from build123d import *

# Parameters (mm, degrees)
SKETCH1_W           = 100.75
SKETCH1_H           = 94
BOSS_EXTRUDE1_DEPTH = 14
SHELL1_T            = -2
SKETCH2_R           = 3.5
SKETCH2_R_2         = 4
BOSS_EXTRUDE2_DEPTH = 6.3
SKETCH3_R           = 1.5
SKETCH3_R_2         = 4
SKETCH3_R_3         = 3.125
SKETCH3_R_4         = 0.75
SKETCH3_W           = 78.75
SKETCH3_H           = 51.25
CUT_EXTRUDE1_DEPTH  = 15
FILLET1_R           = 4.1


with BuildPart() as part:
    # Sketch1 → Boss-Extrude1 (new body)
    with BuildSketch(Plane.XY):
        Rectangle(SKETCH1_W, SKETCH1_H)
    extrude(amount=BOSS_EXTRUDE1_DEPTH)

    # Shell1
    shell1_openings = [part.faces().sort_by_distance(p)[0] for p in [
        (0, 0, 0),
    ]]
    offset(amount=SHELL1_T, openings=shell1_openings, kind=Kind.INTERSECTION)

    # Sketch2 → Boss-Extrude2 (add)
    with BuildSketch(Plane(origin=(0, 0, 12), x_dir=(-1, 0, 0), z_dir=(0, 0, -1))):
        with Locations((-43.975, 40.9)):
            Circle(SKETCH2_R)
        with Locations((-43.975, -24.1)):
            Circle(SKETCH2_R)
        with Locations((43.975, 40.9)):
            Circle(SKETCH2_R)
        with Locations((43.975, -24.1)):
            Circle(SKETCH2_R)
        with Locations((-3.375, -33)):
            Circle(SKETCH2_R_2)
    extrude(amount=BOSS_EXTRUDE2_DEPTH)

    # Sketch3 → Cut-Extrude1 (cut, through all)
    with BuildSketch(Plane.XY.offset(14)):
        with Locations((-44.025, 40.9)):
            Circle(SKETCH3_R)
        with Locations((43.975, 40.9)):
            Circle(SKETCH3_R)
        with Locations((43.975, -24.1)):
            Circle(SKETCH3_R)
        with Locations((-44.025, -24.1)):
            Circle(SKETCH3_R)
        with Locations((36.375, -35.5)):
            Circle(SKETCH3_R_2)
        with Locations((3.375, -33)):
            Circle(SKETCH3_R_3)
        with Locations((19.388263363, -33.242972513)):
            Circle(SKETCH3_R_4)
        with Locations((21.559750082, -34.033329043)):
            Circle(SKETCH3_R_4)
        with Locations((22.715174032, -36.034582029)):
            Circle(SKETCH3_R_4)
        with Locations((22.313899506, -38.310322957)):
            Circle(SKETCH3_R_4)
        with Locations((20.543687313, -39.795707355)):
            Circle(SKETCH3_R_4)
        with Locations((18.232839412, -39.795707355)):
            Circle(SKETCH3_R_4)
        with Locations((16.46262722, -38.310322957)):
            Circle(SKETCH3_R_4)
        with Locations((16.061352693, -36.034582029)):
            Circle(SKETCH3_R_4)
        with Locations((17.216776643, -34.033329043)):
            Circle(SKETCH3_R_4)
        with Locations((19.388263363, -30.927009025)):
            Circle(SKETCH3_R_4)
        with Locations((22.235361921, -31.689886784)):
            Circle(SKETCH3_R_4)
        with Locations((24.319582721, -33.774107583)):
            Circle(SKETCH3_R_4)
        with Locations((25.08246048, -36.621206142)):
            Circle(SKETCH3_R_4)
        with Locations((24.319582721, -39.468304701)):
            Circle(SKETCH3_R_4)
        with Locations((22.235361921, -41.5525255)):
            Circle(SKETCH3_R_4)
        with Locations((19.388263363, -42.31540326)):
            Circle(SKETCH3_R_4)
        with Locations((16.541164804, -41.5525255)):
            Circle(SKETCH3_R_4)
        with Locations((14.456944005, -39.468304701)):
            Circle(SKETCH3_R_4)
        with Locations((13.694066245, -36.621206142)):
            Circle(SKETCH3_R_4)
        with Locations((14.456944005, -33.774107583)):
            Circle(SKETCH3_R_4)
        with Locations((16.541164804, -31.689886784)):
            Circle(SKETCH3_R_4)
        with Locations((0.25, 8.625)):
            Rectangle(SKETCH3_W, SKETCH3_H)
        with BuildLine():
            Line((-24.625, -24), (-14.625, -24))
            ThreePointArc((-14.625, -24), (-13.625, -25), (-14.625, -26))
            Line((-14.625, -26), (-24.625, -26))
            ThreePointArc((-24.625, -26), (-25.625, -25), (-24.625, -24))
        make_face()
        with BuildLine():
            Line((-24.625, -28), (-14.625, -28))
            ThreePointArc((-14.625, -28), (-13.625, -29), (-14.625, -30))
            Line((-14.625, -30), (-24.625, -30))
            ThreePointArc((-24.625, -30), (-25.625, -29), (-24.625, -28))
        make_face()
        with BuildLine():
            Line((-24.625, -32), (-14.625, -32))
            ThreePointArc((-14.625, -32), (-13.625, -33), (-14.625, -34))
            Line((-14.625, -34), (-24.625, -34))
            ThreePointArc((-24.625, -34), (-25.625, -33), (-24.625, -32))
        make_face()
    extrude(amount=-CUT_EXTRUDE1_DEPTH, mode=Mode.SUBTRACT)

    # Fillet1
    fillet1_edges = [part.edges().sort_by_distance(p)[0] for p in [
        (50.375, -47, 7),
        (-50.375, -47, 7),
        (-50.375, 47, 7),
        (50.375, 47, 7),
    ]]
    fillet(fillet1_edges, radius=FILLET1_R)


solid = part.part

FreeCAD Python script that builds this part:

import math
import FreeCAD as App
import Part
import Sketcher

V = App.Vector
Q = App.Units.Quantity


def edges_at(feature, points):
    """Names of the edges that pass closest to the given points."""
    edges = feature.Shape.Edges
    near = lambda p: min(range(len(edges)), key=lambda i: edges[i].distToShape(Part.Vertex(*p))[0])
    return sorted({f"Edge{near(p) + 1}" for p in points})


def faces_at(feature, points):
    """Names of the faces that lie closest to the given points."""
    faces = feature.Shape.Faces
    near = lambda p: min(range(len(faces)), key=lambda i: faces[i].distToShape(Part.Vertex(*p))[0])
    return sorted({f"Face{near(p) + 1}" for p in points})


def add_polygon(sketch, points):
    """Adds a closed chain of lines whose ends are joined by coincident constraints."""
    first, n = sketch.GeometryCount, len(points)
    for a, b in zip(points, points[1:] + points[:1]):
        sketch.addGeometry(Part.LineSegment(App.Vector(*a, 0), App.Vector(*b, 0)), False)
    for i in range(n):
        sketch.addConstraint(Sketcher.Constraint("Coincident", first + i, 2, first + (i + 1) % n, 1))

doc = App.newDocument("Part")
body = doc.addObject("PartDesign::Body", "Body")

sketch1 = doc.addObject("Sketcher::SketchObject", "Sketch")
body.addObject(sketch1)
sketch1.AttachmentSupport = (doc.XY_Plane, [""])
sketch1.MapMode = "FlatFace"
add_polygon(sketch1, [(-50, 47), (-50, -47), (50, -47), (50, 47)])
sketch1.addConstraint([
    Sketcher.Constraint("Vertical", 0),
    Sketcher.Constraint("Horizontal", 1),
    Sketcher.Constraint("Vertical", 2),
    Sketcher.Constraint("Horizontal", 3),
    Sketcher.Constraint("Symmetric", 0, 2, 2, 2, -1, 1),
    Sketcher.Constraint("DistanceY", 0, 2, 0, 1, Q("94 mm")),
    Sketcher.Constraint("DistanceX", 1, 1, 1, 2, Q("100.75 mm")),
])
pad1 = doc.addObject("PartDesign::Pad", "Pad")
body.addObject(pad1)
pad1.Profile = sketch1
pad1.Length = 14
doc.recompute()

thickness = doc.addObject("PartDesign::Thickness", "Thickness")
body.addObject(thickness)
thickness.Base = (pad1, faces_at(pad1, [(0, 0, 0)]))
thickness.Value = 2
thickness.Reversed = True
thickness.Join = "Intersection"

sketch2 = doc.addObject("Sketcher::SketchObject", "Sketch001")
body.addObject(sketch2)
sketch2.AttachmentSupport = (doc.XY_Plane, [""])
sketch2.MapMode = "FlatFace"
sketch2.AttachmentOffset = App.Placement(V(0, 0, 12), App.Rotation())
sketch2.addGeometry([
    Part.Circle(V(44, 40.9, 0), V(0, 0, 1), 3.5),
    Part.Circle(V(44, -24.1, 0), V(0, 0, 1), 3.5),
    Part.Circle(V(-44, 40.9, 0), V(0, 0, 1), 3.5),
    Part.Circle(V(-44, -24.1, 0), V(0, 0, 1), 3.5),
    Part.Circle(V(3.4, -33, 0), V(0, 0, 1), 4),
], False)
sketch2.addConstraint([
    Sketcher.Constraint("Equal", 0, 1),
    Sketcher.Constraint("Equal", 1, 2),
    Sketcher.Constraint("Equal", 2, 3),
    Sketcher.Constraint("Symmetric", 0, 3, 2, 3, -2),
    Sketcher.Constraint("Symmetric", 1, 3, 3, 3, -2),
    Sketcher.Constraint("Vertical", 0, 3, 1, 3),
    Sketcher.Constraint("Diameter", 0, Q("7 mm")),
    Sketcher.Constraint("Diameter", 4, Q("8 mm")),
    Sketcher.Constraint("DistanceY", 4, 3, -1, 1, Q("33 mm")),
    Sketcher.Constraint("DistanceY", 1, 3, 0, 3, Q("65 mm")),
    Sketcher.Constraint("DistanceY", -1, 1, 0, 3, Q("40.9 mm")),
    Sketcher.Constraint("DistanceX", 4, 3, 1, 3, Q("40.6 mm")),
    Sketcher.Constraint("DistanceX", 2, 3, 0, 3, Q("87.95 mm")),
])
pad2 = doc.addObject("PartDesign::Pad", "Pad001")
body.addObject(pad2)
pad2.Profile = sketch2
pad2.Length = 6.3
pad2.Reversed = True

sketch3 = doc.addObject("Sketcher::SketchObject", "Sketch002")
body.addObject(sketch3)
sketch3.AttachmentSupport = (doc.XY_Plane, [""])
sketch3.MapMode = "FlatFace"
sketch3.AttachmentOffset = App.Placement(V(0, 0, 14), App.Rotation())
sketch3.addGeometry(Part.Circle(V(-44, 40.9, 0), V(0, 0, 1), 1.5), False)
sketch3.addGeometry(Part.Circle(V(44, 40.9, 0), V(0, 0, 1), 1.5), False)
sketch3.addGeometry(Part.Circle(V(44, -24.1, 0), V(0, 0, 1), 1.5), False)
sketch3.addGeometry(Part.Circle(V(-44, -24.1, 0), V(0, 0, 1), 1.5), False)
sketch3.addGeometry(Part.Circle(V(36.4, -35.5, 0), V(0, 0, 1), 4), False)
sketch3.addGeometry(Part.Circle(V(3.4, -33, 0), V(0, 0, 1), 3.1), False)
sketch3.addGeometry(Part.Circle(V(19.4, -33.2, 0), V(0, 0, 1), 0.8), False)
sketch3.addGeometry(Part.Circle(V(21.6, -34, 0), V(0, 0, 1), 0.8), False)
sketch3.addGeometry(Part.Circle(V(22.7, -36, 0), V(0, 0, 1), 0.8), False)
sketch3.addGeometry(Part.Circle(V(22.3, -38.3, 0), V(0, 0, 1), 0.8), False)
sketch3.addGeometry(Part.Circle(V(20.5, -39.8, 0), V(0, 0, 1), 0.8), False)
sketch3.addGeometry(Part.Circle(V(18.2, -39.8, 0), V(0, 0, 1), 0.8), False)
sketch3.addGeometry(Part.Circle(V(16.5, -38.3, 0), V(0, 0, 1), 0.8), False)
sketch3.addGeometry(Part.Circle(V(16.1, -36, 0), V(0, 0, 1), 0.8), False)
sketch3.addGeometry(Part.Circle(V(17.2, -34, 0), V(0, 0, 1), 0.8), False)
sketch3.addGeometry(Part.Circle(V(19.4, -30.9, 0), V(0, 0, 1), 0.8), False)
sketch3.addGeometry(Part.Circle(V(22.2, -31.7, 0), V(0, 0, 1), 0.8), False)
sketch3.addGeometry(Part.Circle(V(24.3, -33.8, 0), V(0, 0, 1), 0.8), False)
sketch3.addGeometry(Part.Circle(V(25.1, -36.6, 0), V(0, 0, 1), 0.8), False)
sketch3.addGeometry(Part.Circle(V(24.3, -39.5, 0), V(0, 0, 1), 0.8), False)
sketch3.addGeometry(Part.Circle(V(22.2, -41.6, 0), V(0, 0, 1), 0.8), False)
sketch3.addGeometry(Part.Circle(V(19.4, -42.3, 0), V(0, 0, 1), 0.8), False)
sketch3.addGeometry(Part.Circle(V(16.5, -41.6, 0), V(0, 0, 1), 0.8), False)
sketch3.addGeometry(Part.Circle(V(14.5, -39.5, 0), V(0, 0, 1), 0.8), False)
sketch3.addGeometry(Part.Circle(V(13.7, -36.6, 0), V(0, 0, 1), 0.8), False)
sketch3.addGeometry(Part.Circle(V(14.5, -33.8, 0), V(0, 0, 1), 0.8), False)
sketch3.addGeometry(Part.Circle(V(16.5, -31.7, 0), V(0, 0, 1), 0.8), False)
add_polygon(sketch3, [(-39.1, 34.2), (-39.1, -17), (39.6, -17), (39.6, 34.2)])
sketch3.addGeometry(Part.LineSegment(V(-14.6, -24, 0), V(-24.6, -24, 0)), False)
sketch3.addGeometry(Part.ArcOfCircle(Part.Circle(V(-24.6, -25, 0), V(0, 0, 1), 1), math.radians(90), math.radians(270)), False)
sketch3.addGeometry(Part.LineSegment(V(-24.6, -26, 0), V(-14.6, -26, 0)), False)
sketch3.addGeometry(Part.ArcOfCircle(Part.Circle(V(-14.6, -25, 0), V(0, 0, 1), 1), math.radians(-90), math.radians(90)), False)
sketch3.addGeometry(Part.LineSegment(V(-14.6, -28, 0), V(-24.6, -28, 0)), False)
sketch3.addGeometry(Part.ArcOfCircle(Part.Circle(V(-24.6, -29, 0), V(0, 0, 1), 1), math.radians(90), math.radians(270)), False)
sketch3.addGeometry(Part.LineSegment(V(-24.6, -30, 0), V(-14.6, -30, 0)), False)
sketch3.addGeometry(Part.ArcOfCircle(Part.Circle(V(-14.6, -29, 0), V(0, 0, 1), 1), math.radians(-90), math.radians(90)), False)
sketch3.addGeometry(Part.LineSegment(V(-14.6, -32, 0), V(-24.6, -32, 0)), False)
sketch3.addGeometry(Part.ArcOfCircle(Part.Circle(V(-24.6, -33, 0), V(0, 0, 1), 1), math.radians(90), math.radians(270)), False)
sketch3.addGeometry(Part.LineSegment(V(-24.6, -34, 0), V(-14.6, -34, 0)), False)
sketch3.addGeometry(Part.ArcOfCircle(Part.Circle(V(-14.6, -33, 0), V(0, 0, 1), 1), math.radians(-90), math.radians(90)), False)
sketch3.addConstraint([
    Sketcher.Constraint("Tangent", 31, 2, 32, 1),
    Sketcher.Constraint("Tangent", 32, 2, 33, 1),
    Sketcher.Constraint("Tangent", 33, 2, 34, 1),
    Sketcher.Constraint("Tangent", 34, 2, 31, 1),
    Sketcher.Constraint("Tangent", 35, 2, 36, 1),
    Sketcher.Constraint("Tangent", 36, 2, 37, 1),
    Sketcher.Constraint("Tangent", 37, 2, 38, 1),
    Sketcher.Constraint("Tangent", 38, 2, 35, 1),
    Sketcher.Constraint("Tangent", 39, 2, 40, 1),
    Sketcher.Constraint("Tangent", 40, 2, 41, 1),
    Sketcher.Constraint("Tangent", 41, 2, 42, 1),
    Sketcher.Constraint("Tangent", 42, 2, 39, 1),
    Sketcher.Constraint("Vertical", 27),
    Sketcher.Constraint("Horizontal", 28),
    Sketcher.Constraint("Vertical", 29),
    Sketcher.Constraint("Horizontal", 30),
    Sketcher.Constraint("Horizontal", 31),
    Sketcher.Constraint("Horizontal", 33),
    Sketcher.Constraint("Horizontal", 35),
    Sketcher.Constraint("Horizontal", 37),
    Sketcher.Constraint("Horizontal", 39),
    Sketcher.Constraint("Horizontal", 41),
    Sketcher.Constraint("Equal", 0, 1),
    Sketcher.Constraint("Equal", 1, 2),
    Sketcher.Constraint("Equal", 2, 3),
    Sketcher.Constraint("Equal", 6, 7),
    Sketcher.Constraint("Equal", 7, 8),
    Sketcher.Constraint("Equal", 8, 9),
    Sketcher.Constraint("Equal", 9, 10),
    Sketcher.Constraint("Equal", 10, 11),
    Sketcher.Constraint("Equal", 11, 12),
    Sketcher.Constraint("Equal", 12, 13),
    Sketcher.Constraint("Equal", 13, 14),
    Sketcher.Constraint("Equal", 14, 15),
    Sketcher.Constraint("Equal", 15, 16),
    Sketcher.Constraint("Equal", 16, 17),
    Sketcher.Constraint("Equal", 17, 18),
    Sketcher.Constraint("Equal", 18, 19),
    Sketcher.Constraint("Equal", 19, 20),
    Sketcher.Constraint("Equal", 20, 21),
    Sketcher.Constraint("Equal", 21, 22),
    Sketcher.Constraint("Equal", 22, 23),
    Sketcher.Constraint("Equal", 23, 24),
    Sketcher.Constraint("Equal", 24, 25),
    Sketcher.Constraint("Equal", 25, 26),
    Sketcher.Constraint("Equal", 34, 36),
    Sketcher.Constraint("Equal", 38, 40),
    Sketcher.Constraint("Horizontal", 0, 3, 1, 3),
    Sketcher.Constraint("Horizontal", 2, 3, 3, 3),
    Sketcher.Constraint("Horizontal", 10, 3, 11, 3),
    Sketcher.Constraint("Horizontal", 9, 3, 12, 3),
    Sketcher.Constraint("Horizontal", 8, 3, 13, 3),
    Sketcher.Constraint("Horizontal", 7, 3, 14, 3),
    Sketcher.Constraint("Horizontal", 20, 3, 22, 3),
    Sketcher.Constraint("Horizontal", 19, 3, 23, 3),
    Sketcher.Constraint("Horizontal", 18, 3, 24, 3),
    Sketcher.Constraint("Horizontal", 17, 3, 25, 3),
    Sketcher.Constraint("Horizontal", 16, 3, 26, 3),
    Sketcher.Constraint("Horizontal", 5, 3, 40, 3),
    Sketcher.Constraint("Vertical", 1, 3, 2, 3),
    Sketcher.Constraint("Vertical", 0, 3, 3, 3),
    Sketcher.Constraint("Vertical", 6, 3, 15, 3),
    Sketcher.Constraint("Vertical", 17, 3, 19, 3),
    Sketcher.Constraint("Vertical", 16, 3, 20, 3),
    Sketcher.Constraint("Vertical", 15, 3, 21, 3),
    Sketcher.Constraint("Vertical", 23, 3, 25, 3),
    Sketcher.Constraint("Vertical", 22, 3, 26, 3),
    Sketcher.Constraint("Vertical", 32, 3, 36, 3),
    Sketcher.Constraint("Vertical", 34, 3, 38, 3),
    Sketcher.Constraint("Vertical", 36, 3, 40, 3),
    Sketcher.Constraint("Vertical", 38, 3, 42, 3),
    Sketcher.Constraint("Diameter", 0, Q("3 mm")),
    Sketcher.Constraint("Diameter", 4, Q("8 mm")),
    Sketcher.Constraint("Radius", 32, Q("1 mm")),
    Sketcher.Constraint("Diameter", 6, Q("1.5 mm")),
    Sketcher.Constraint("Diameter", 5, Q("6.25 mm")),
    Sketcher.Constraint("DistanceX", 31, 2, 31, 1, Q("10 mm")),
    Sketcher.Constraint("DistanceY", 5, 3, -1, 1, Q("33 mm")),
    Sketcher.Constraint("DistanceY", 32, 3, -1, 1, Q("25 mm")),
    Sketcher.Constraint("DistanceY", 36, 3, -1, 1, Q("29 mm")),
    Sketcher.Constraint("DistanceY", 27, 2, -1, 1, Q("17 mm")),
    Sketcher.Constraint("DistanceX", 0, 3, 1, 3, Q("88 mm")),
    Sketcher.Constraint("DistanceY", 2, 3, 1, 3, Q("65 mm")),
    Sketcher.Constraint("DistanceX", 5, 3, 4, 3, Q("33 mm")),
    Sketcher.Constraint("DistanceX", 32, 3, 5, 3, Q("28 mm")),
    Sketcher.Constraint("DistanceX", 28, 1, 28, 2, Q("78.75 mm")),
    Sketcher.Constraint("DistanceY", 27, 2, 27, 1, Q("51.25 mm")),
    Sketcher.Constraint("DistanceY", -1, 1, 0, 3, Q("40.9 mm")),
    Sketcher.Constraint("DistanceY", 4, 3, -1, 1, Q("35.5 mm")),
    Sketcher.Constraint("DistanceX", 4, 3, 2, 3, Q("7.6 mm")),
    Sketcher.Constraint("DistanceX", 3, 3, 27, 2, Q("4.9 mm")),
    Sketcher.Constraint("DistanceX", 0, 3, -1, 1, Q("44.025 mm")),
    Sketcher.Constraint("DistanceX", -1, 1, 9, 3, Q("22.3139 mm")),
    Sketcher.Constraint("DistanceX", 15, 3, 16, 3, Q("2.847099 mm")),
    Sketcher.Constraint("DistanceY", 18, 3, 17, 3, Q("2.847099 mm")),
    Sketcher.Constraint("DistanceY", 10, 3, 18, 3, Q("3.174501 mm")),
    Sketcher.Constraint("DistanceY", 19, 3, 18, 3, Q("2.847099 mm")),
    Sketcher.Constraint("DistanceX", 22, 3, 21, 3, Q("2.847099 mm")),
    Sketcher.Constraint("DistanceY", 21, 3, 23, 3, Q("2.847099 mm")),
    Sketcher.Constraint("DistanceX", -1, 1, 7, 3, Q("21.55975 mm")),
    Sketcher.Constraint("DistanceY", 7, 3, -1, 1, Q("34.033329 mm")),
    Sketcher.Constraint("DistanceX", -1, 1, 11, 3, Q("18.232839 mm")),
    Sketcher.Constraint("DistanceY", 15, 3, -1, 1, Q("30.927009 mm")),
    Sketcher.Constraint("DistanceX", -1, 1, 16, 3, Q("22.235362 mm")),
    Sketcher.Constraint("DistanceX", -1, 1, 18, 3, Q("25.08246 mm")),
    Sketcher.Constraint("DistanceX", 6, 3, 8, 3, Q("3.326911 mm")),
    Sketcher.Constraint("DistanceY", 8, 3, 6, 3, Q("2.79161 mm")),
    Sketcher.Constraint("DistanceY", 9, 3, 8, 3, Q("2.275741 mm")),
    Sketcher.Constraint("DistanceY", 10, 3, 7, 3, Q("5.762378 mm")),
    Sketcher.Constraint("DistanceX", 12, 3, 10, 3, Q("4.08106 mm")),
    Sketcher.Constraint("DistanceX", 13, 3, 6, 3, Q("3.326911 mm")),
    Sketcher.Constraint("DistanceX", 12, 3, 14, 3, Q("0.754149 mm")),
    Sketcher.Constraint("DistanceX", 8, 3, 17, 3, Q("1.604409 mm")),
    Sketcher.Constraint("DistanceY", 17, 3, 16, 3, Q("2.084221 mm")),
    Sketcher.Constraint("DistanceY", 19, 3, 9, 3, Q("1.157982 mm")),
    Sketcher.Constraint("DistanceY", 20, 3, 10, 3, Q("1.756818 mm")),
    Sketcher.Constraint("DistanceX", 23, 3, 22, 3, Q("2.084221 mm")),
    Sketcher.Constraint("DistanceX", 24, 3, 12, 3, Q("2.768561 mm")),
    Sketcher.Constraint("DistanceX", 26, 3, 14, 3, Q("0.675612 mm")),
])
pocket1 = doc.addObject("PartDesign::Pocket", "Pocket")
body.addObject(pocket1)
pocket1.Profile = sketch3
pocket1.Type = "ThroughAll"
doc.recompute()

fillet = doc.addObject("PartDesign::Fillet", "Fillet")
body.addObject(fillet)
fillet.Base = (pocket1, edges_at(pocket1, [
    (50.375, -47, 7),
    (-50.375, -47, 7),
    (-50.375, 47, 7),
    (50.375, 47, 7),
]))
fillet.Radius = 4.1

doc.recompute()
